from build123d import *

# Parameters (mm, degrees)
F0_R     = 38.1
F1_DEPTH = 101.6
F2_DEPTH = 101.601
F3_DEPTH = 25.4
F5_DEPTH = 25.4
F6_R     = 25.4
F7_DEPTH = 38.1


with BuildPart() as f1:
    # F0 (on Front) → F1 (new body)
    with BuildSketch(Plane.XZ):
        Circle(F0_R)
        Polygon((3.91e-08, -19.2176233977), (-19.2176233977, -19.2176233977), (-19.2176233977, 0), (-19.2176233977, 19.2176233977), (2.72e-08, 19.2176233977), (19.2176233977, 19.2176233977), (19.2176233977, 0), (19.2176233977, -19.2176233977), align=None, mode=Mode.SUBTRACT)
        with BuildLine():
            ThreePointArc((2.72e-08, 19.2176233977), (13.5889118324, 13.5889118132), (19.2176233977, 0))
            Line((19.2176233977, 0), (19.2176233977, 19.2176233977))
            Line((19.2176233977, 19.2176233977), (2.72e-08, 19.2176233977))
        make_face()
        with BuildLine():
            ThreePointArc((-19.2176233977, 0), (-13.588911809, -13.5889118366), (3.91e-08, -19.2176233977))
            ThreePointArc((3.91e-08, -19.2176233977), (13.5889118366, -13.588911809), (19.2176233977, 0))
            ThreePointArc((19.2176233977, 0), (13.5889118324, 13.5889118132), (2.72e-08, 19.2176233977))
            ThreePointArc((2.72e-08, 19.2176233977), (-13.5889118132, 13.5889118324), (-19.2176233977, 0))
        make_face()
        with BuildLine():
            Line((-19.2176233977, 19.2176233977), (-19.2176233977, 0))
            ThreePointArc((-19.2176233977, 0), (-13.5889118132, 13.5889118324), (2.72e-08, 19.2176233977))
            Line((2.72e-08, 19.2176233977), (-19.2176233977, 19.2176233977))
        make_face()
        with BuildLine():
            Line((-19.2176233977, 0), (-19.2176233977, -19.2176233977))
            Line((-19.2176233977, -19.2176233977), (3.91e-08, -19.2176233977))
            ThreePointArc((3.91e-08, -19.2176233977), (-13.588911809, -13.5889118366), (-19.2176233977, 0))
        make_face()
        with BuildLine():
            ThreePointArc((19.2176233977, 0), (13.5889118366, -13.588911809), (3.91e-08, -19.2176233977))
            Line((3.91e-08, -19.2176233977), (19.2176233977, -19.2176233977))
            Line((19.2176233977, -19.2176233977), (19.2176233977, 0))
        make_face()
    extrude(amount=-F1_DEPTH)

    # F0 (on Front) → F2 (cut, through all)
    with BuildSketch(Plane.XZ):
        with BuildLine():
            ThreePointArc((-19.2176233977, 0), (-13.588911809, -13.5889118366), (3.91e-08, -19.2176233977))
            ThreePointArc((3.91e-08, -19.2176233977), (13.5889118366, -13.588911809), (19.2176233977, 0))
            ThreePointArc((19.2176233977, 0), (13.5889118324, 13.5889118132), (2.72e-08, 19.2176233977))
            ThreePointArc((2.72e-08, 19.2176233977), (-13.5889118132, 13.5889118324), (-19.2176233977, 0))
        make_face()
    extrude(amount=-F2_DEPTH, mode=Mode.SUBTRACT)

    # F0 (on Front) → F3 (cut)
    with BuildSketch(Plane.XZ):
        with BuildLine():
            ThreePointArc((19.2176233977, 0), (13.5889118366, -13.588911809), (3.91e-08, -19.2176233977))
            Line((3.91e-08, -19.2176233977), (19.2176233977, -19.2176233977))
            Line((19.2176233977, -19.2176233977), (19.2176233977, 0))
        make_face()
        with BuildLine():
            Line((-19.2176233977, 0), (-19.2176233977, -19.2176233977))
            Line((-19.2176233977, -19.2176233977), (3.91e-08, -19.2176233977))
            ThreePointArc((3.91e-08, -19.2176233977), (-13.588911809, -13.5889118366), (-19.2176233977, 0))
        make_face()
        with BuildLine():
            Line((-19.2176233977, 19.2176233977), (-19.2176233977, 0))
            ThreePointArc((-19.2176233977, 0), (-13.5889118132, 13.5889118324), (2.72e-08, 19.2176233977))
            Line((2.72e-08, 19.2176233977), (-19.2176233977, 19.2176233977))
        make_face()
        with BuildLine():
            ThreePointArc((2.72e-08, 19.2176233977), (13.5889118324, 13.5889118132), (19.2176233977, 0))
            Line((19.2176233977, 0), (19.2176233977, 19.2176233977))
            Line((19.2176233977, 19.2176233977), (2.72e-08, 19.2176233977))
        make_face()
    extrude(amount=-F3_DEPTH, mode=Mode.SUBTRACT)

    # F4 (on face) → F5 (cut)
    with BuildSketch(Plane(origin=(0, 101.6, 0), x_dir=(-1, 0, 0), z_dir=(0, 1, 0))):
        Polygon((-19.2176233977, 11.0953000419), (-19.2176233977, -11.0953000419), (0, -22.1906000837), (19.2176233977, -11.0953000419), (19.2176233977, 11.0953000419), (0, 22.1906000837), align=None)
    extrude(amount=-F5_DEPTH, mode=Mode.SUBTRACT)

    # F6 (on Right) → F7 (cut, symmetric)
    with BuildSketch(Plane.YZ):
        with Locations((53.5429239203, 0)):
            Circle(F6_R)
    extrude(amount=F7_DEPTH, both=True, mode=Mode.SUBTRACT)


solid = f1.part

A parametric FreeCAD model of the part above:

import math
import FreeCAD as App
import Part
import Sketcher
Q = App.Units.Quantity


def add_polygon(sketch, points):
    """Adds a closed chain of lines whose ends are joined by coincident constraints."""
    first, n = sketch.GeometryCount, len(points)
    for a, b in zip(points, points[1:] + points[:1]):
        sketch.addGeometry(Part.LineSegment(App.Vector(*a, 0), App.Vector(*b, 0)), False)
    for i in range(n):
        sketch.addConstraint(Sketcher.Constraint("Coincident", first + i, 2, first + (i + 1) % n, 1))

doc = App.newDocument("Part")
body = doc.addObject("PartDesign::Body", "Body")

sketch1 = doc.addObject("Sketcher::SketchObject", "Sketch")
body.addObject(sketch1)
sketch1.AttachmentSupport = (doc.XZ_Plane, [""])
sketch1.MapMode = "FlatFace"
sketch1.addGeometry(Part.Circle(App.Vector(0, 0, 0), App.Vector(0, 0, 1), 38), False)
sketch1.addConstraint([
    Sketcher.Constraint("Coincident", 0, 3, -1, 1),
    Sketcher.Constraint("Diameter", 0, Q("3 in")),
])
pad1 = doc.addObject("PartDesign::Pad", "Pad")
body.addObject(pad1)
pad1.Profile = sketch1
pad1.Length = Q("4 in")
pad1.Reversed = True

sketch2 = doc.addObject("Sketcher::SketchObject", "Sketch001")
body.addObject(sketch2)
sketch2.AttachmentSupport = (doc.XZ_Plane, [""])
sketch2.MapMode = "FlatFace"
sketch2.addGeometry([
    Part.ArcOfCircle(Part.Circle(App.Vector(0, 0, 0), App.Vector(0, 0, 1), 19), math.radians(180), math.radians(270)),
    Part.ArcOfCircle(Part.Circle(App.Vector(0, 0, 0), App.Vector(0, 0, 1), 19), math.radians(-90), math.radians(0)),
    Part.ArcOfCircle(Part.Circle(App.Vector(0, 0, 0), App.Vector(0, 0, 1), 19), math.radians(0), math.radians(90)),
    Part.ArcOfCircle(Part.Circle(App.Vector(0, 0, 0), App.Vector(0, 0, 1), 19), math.radians(90), math.radians(180)),
], False)
sketch2.addConstraint([
    Sketcher.Constraint("Tangent", 0, 2, 1, 1),
    Sketcher.Constraint("Tangent", 1, 2, 2, 1),
    Sketcher.Constraint("Tangent", 2, 2, 3, 1),
    Sketcher.Constraint("Tangent", 3, 2, 0, 1),
    Sketcher.Constraint("Coincident", 0, 3, -1, 1),
    Sketcher.Constraint("Equal", 0, 1),
    Sketcher.Constraint("PointOnObject", 0, 2, -2),
    Sketcher.Constraint("PointOnObject", 1, 2, -1),
    Sketcher.Constraint("PointOnObject", 2, 2, -2),
    Sketcher.Constraint("PointOnObject", 3, 2, -1),
    Sketcher.Constraint("Radius", 0, 19.217623),
])
pocket1 = doc.addObject("PartDesign::Pocket", "Pocket")
body.addObject(pocket1)
pocket1.Profile = sketch2
pocket1.Type = "ThroughAll"

sketch3 = doc.addObject("Sketcher::SketchObject", "Sketch002")
body.addObject(sketch3)
sketch3.AttachmentSupport = (doc.XZ_Plane, [""])
sketch3.MapMode = "FlatFace"
sketch3.addGeometry([
    Part.ArcOfCircle(Part.Circle(App.Vector(0, 0, 0), App.Vector(0, 0, 1), 19), math.radians(-90), math.radians(0)),
    Part.LineSegment(App.Vector(0, -19, 0), App.Vector(19, -19, 0)),
    Part.LineSegment(App.Vector(19, -19, 0), App.Vector(19, 0, 0)),
    Part.LineSegment(App.Vector(-19, 0, 0), App.Vector(-19, -19, 0)),
    Part.LineSegment(App.Vector(-19, -19, 0), App.Vector(0, -19, 0)),
    Part.ArcOfCircle(Part.Circle(App.Vector(0, 0, 0), App.Vector(0, 0, 1), 19), math.radians(180), math.radians(270)),
    Part.LineSegment(App.Vector(-19, 19, 0), App.Vector(-19, 0, 0)),
    Part.ArcOfCircle(Part.Circle(App.Vector(0, 0, 0), App.Vector(0, 0, 1), 19), math.radians(90), math.radians(180)),
    Part.LineSegment(App.Vector(0, 19, 0), App.Vector(-19, 19, 0)),
    Part.ArcOfCircle(Part.Circle(App.Vector(0, 0, 0), App.Vector(0, 0, 1), 19), math.radians(0), math.radians(90)),
    Part.LineSegment(App.Vector(19, 0, 0), App.Vector(19, 19, 0)),
    Part.LineSegment(App.Vector(19, 19, 0), App.Vector(0, 19, 0)),
], False)
sketch3.addConstraint([
    Sketcher.Constraint("Tangent", 0, 1, 1, 1),
    Sketcher.Constraint("Coincident", 1, 2, 2, 1),
    Sketcher.Constraint("Tangent", 2, 2, 0, 2),
    Sketcher.Constraint("Coincident", 3, 2, 4, 1),
    Sketcher.Constraint("Tangent", 4, 2, 5, 2),
    Sketcher.Constraint("Tangent", 5, 1, 3, 1),
    Sketcher.Constraint("Tangent", 6, 2, 7, 2),
    Sketcher.Constraint("Tangent", 7, 1, 8, 1),
    Sketcher.Constraint("Coincident", 8, 2, 6, 1),
    Sketcher.Constraint("Tangent", 9, 1, 10, 1),
    Sketcher.Constraint("Coincident", 10, 2, 11, 1),
    Sketcher.Constraint("Tangent", 11, 2, 9, 2),
    Sketcher.Constraint("Horizontal", 1),
    Sketcher.Constraint("Vertical", 2),
    Sketcher.Constraint("Vertical", 3),
    Sketcher.Constraint("Horizontal", 4),
    Sketcher.Constraint("Vertical", 6),
    Sketcher.Constraint("Horizontal", 8),
    Sketcher.Constraint("Vertical", 10),
    Sketcher.Constraint("Horizontal", 11),
    Sketcher.Constraint("Coincident", 0, 3, -1, 1),
    Sketcher.Constraint("Coincident", 5, 3, -1, 1),
    Sketcher.Constraint("Coincident", 7, 3, -1, 1),
    Sketcher.Constraint("Coincident", 9, 3, -1, 1),
    Sketcher.Constraint("Equal", 0, 5),
    Sketcher.Constraint("Equal", 5, 7),
    Sketcher.Constraint("Equal", 7, 9),
    Sketcher.Constraint("Radius", 0, 19.217623),
])
pocket2 = doc.addObject("PartDesign::Pocket", "Pocket001")
body.addObject(pocket2)
pocket2.Profile = sketch3
pocket2.Length = Q("1 in")

sketch4 = doc.addObject("Sketcher::SketchObject", "Sketch003")
body.addObject(sketch4)
sketch4.AttachmentSupport = (doc.XZ_Plane, [""])
sketch4.MapMode = "FlatFace"
sketch4.AttachmentOffset = App.Placement(App.Vector(0, 0, -4 * 25.4), App.Rotation())
add_polygon(sketch4, [(19, 11), (19, -11), (0, -22), (-19, -11), (-19, 11), (0, 22)])
sketch4.addConstraint([
    Sketcher.Constraint("Vertical", 0),
    Sketcher.Constraint("Vertical", 3),
    Sketcher.Constraint("Symmetric", 0, 2, 3, 2, -1, 1),
    Sketcher.Constraint("Symmetric", 1, 2, 4, 2, -1, 1),
    Sketcher.Constraint("PointOnObject", 1, 2, -2),
    Sketcher.Constraint("Parallel", 2, 5),
    Sketcher.Constraint("Horizontal", 0, 2, 2, 2),
    Sketcher.Constraint("Angle", 1, Q("-150 deg")),
    Sketcher.Constraint("DistanceY", 0, 2, 0, 1, 22.1906),
    Sketcher.Constraint("Distance", 1, 22.1906),
])
pocket3 = doc.addObject("PartDesign::Pocket", "Pocket002")
body.addObject(pocket3)
pocket3.Profile = sketch4
pocket3.Length = Q("1 in")
pocket3.Reversed = True

sketch5 = doc.addObject("Sketcher::SketchObject", "Sketch004")
body.addObject(sketch5)
sketch5.AttachmentSupport = (doc.YZ_Plane, [""])
sketch5.MapMode = "FlatFace"
sketch5.addGeometry(Part.Circle(App.Vector(54, 0, 0), App.Vector(0, 0, 1), 25), False)
sketch5.addConstraint([
    Sketcher.Constraint("PointOnObject", 0, 3, -1),
    Sketcher.Constraint("Diameter", 0, Q("2 in")),
    Sketcher.Constraint("DistanceX", -1, 1, 0, 3, 53.542924),
])
pocket4 = doc.addObject("PartDesign::Pocket", "Pocket003")
body.addObject(pocket4)
pocket4.Profile = sketch5
pocket4.Length = Q("3 in")
pocket4.Midplane = True

doc.recompute()
